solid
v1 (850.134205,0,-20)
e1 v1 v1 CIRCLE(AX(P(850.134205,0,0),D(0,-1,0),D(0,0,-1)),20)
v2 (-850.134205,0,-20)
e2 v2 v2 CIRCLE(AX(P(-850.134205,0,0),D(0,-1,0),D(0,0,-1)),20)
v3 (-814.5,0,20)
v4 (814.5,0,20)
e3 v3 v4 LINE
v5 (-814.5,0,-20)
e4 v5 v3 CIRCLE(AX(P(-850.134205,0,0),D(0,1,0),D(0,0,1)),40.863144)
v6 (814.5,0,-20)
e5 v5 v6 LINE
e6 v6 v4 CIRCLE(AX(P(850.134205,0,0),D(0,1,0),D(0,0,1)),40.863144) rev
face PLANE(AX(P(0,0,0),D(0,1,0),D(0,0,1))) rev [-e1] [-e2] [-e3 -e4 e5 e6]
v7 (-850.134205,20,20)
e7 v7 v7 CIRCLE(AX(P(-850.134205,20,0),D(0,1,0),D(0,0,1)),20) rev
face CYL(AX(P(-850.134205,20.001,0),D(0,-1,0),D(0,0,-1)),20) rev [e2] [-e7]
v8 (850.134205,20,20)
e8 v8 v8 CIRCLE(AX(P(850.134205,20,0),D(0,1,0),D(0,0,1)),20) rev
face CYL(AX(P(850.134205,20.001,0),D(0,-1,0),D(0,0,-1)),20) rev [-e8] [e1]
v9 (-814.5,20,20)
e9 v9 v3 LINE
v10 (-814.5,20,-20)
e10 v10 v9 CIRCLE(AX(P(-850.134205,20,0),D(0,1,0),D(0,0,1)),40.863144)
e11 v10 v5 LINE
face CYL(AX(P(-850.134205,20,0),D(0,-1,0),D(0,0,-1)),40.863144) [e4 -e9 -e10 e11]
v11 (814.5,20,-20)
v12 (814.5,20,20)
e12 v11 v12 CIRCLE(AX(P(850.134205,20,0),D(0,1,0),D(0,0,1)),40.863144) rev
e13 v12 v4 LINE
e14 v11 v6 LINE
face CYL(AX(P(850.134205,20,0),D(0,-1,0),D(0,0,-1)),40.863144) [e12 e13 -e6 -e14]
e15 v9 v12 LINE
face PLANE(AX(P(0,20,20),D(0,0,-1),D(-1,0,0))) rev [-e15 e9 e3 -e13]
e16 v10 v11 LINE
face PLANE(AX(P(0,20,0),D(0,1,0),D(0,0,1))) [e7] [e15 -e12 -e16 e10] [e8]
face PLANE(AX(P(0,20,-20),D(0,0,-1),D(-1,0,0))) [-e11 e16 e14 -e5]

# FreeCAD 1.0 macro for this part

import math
import FreeCAD as App
import Part
import Sketcher
Q = App.Units.Quantity

doc = App.newDocument("Part")
body = doc.addObject("PartDesign::Body", "Body")

sketch1 = body.newObject("Sketcher::SketchObject", "Sketch")
sketch1.AttachmentSupport = (doc.getObject("XZ_Plane"), [""])
sketch1.MapMode = "FlatFace"
sketch1.addGeometry([
    Part.LineSegment(App.Vector(-814, 20, 0), App.Vector(814, 20, 0)),
    Part.ArcOfCircle(Part.Circle(App.Vector(850, 0, 0), App.Vector(0, 0, 1), 41), math.radians(-151), math.radians(151)),
    Part.LineSegment(App.Vector(814, -20, 0), App.Vector(-814, -20, 0)),
    Part.ArcOfCircle(Part.Circle(App.Vector(-850, 0, 0), App.Vector(0, 0, 1), 41), math.radians(29), math.radians(331)),
], False)
sketch1.addConstraint([
    Sketcher.Constraint("Coincident", 0, 2, 1, 2),
    Sketcher.Constraint("Coincident", 1, 1, 2, 1),
    Sketcher.Constraint("Coincident", 2, 2, 3, 2),
    Sketcher.Constraint("Coincident", 3, 1, 0, 1),
    Sketcher.Constraint("Horizontal", 0),
    Sketcher.Constraint("Horizontal", 2),
    Sketcher.Constraint("Equal", 1, 3),
    Sketcher.Constraint("Symmetric", 1, 3, 3, 3, -1, 1),
    Sketcher.Constraint("Symmetric", 0, 2, 1, 1, -1),
    Sketcher.Constraint("DistanceX", 0, 1, 0, 2, Q("1629 mm")),
    Sketcher.Constraint("DistanceY", -1, 1, 0, 2, Q("20 mm")),
    Sketcher.Constraint("Radius", 1, Q("40.863144 mm")),
])
pad1 = body.newObject("PartDesign::Pad", "Pad")
pad1.Profile = sketch1
pad1.Length = 20
pad1.Reversed = True

sketch2 = body.newObject("Sketcher::SketchObject", "Sketch001")
sketch2.AttachmentSupport = (doc.getObject("XZ_Plane"), [""])
sketch2.MapMode = "FlatFace"
sketch2.addGeometry(Part.Circle(App.Vector(-850, 0, 0), App.Vector(0, 0, 1), 20), False)
sketch2.addConstraint([
    Sketcher.Constraint("PointOnObject", 0, 3, -1),
    Sketcher.Constraint("Diameter", 0, Q("40 mm")),
    Sketcher.Constraint("DistanceX", 0, 3, -1, 1, Q("850.134205 mm")),
])
pocket1 = body.newObject("PartDesign::Pocket", "Pocket")
pocket1.Profile = sketch2
pocket1.Type = "UpToFirst"

sketch3 = body.newObject("Sketcher::SketchObject", "Sketch002")
sketch3.AttachmentSupport = (doc.getObject("XZ_Plane"), [""])
sketch3.MapMode = "FlatFace"
sketch3.addGeometry(Part.Circle(App.Vector(850, 0, 0), App.Vector(0, 0, 1), 20), False)
sketch3.addConstraint([
    Sketcher.Constraint("PointOnObject", 0, 3, -1),
    Sketcher.Constraint("Diameter", 0, Q("40 mm")),
    Sketcher.Constraint("DistanceX", -1, 1, 0, 3, Q("850.134205 mm")),
])
pocket2 = body.newObject("PartDesign::Pocket", "Pocket001")
pocket2.Profile = sketch3
pocket2.Type = "UpToFirst"

doc.recompute()
